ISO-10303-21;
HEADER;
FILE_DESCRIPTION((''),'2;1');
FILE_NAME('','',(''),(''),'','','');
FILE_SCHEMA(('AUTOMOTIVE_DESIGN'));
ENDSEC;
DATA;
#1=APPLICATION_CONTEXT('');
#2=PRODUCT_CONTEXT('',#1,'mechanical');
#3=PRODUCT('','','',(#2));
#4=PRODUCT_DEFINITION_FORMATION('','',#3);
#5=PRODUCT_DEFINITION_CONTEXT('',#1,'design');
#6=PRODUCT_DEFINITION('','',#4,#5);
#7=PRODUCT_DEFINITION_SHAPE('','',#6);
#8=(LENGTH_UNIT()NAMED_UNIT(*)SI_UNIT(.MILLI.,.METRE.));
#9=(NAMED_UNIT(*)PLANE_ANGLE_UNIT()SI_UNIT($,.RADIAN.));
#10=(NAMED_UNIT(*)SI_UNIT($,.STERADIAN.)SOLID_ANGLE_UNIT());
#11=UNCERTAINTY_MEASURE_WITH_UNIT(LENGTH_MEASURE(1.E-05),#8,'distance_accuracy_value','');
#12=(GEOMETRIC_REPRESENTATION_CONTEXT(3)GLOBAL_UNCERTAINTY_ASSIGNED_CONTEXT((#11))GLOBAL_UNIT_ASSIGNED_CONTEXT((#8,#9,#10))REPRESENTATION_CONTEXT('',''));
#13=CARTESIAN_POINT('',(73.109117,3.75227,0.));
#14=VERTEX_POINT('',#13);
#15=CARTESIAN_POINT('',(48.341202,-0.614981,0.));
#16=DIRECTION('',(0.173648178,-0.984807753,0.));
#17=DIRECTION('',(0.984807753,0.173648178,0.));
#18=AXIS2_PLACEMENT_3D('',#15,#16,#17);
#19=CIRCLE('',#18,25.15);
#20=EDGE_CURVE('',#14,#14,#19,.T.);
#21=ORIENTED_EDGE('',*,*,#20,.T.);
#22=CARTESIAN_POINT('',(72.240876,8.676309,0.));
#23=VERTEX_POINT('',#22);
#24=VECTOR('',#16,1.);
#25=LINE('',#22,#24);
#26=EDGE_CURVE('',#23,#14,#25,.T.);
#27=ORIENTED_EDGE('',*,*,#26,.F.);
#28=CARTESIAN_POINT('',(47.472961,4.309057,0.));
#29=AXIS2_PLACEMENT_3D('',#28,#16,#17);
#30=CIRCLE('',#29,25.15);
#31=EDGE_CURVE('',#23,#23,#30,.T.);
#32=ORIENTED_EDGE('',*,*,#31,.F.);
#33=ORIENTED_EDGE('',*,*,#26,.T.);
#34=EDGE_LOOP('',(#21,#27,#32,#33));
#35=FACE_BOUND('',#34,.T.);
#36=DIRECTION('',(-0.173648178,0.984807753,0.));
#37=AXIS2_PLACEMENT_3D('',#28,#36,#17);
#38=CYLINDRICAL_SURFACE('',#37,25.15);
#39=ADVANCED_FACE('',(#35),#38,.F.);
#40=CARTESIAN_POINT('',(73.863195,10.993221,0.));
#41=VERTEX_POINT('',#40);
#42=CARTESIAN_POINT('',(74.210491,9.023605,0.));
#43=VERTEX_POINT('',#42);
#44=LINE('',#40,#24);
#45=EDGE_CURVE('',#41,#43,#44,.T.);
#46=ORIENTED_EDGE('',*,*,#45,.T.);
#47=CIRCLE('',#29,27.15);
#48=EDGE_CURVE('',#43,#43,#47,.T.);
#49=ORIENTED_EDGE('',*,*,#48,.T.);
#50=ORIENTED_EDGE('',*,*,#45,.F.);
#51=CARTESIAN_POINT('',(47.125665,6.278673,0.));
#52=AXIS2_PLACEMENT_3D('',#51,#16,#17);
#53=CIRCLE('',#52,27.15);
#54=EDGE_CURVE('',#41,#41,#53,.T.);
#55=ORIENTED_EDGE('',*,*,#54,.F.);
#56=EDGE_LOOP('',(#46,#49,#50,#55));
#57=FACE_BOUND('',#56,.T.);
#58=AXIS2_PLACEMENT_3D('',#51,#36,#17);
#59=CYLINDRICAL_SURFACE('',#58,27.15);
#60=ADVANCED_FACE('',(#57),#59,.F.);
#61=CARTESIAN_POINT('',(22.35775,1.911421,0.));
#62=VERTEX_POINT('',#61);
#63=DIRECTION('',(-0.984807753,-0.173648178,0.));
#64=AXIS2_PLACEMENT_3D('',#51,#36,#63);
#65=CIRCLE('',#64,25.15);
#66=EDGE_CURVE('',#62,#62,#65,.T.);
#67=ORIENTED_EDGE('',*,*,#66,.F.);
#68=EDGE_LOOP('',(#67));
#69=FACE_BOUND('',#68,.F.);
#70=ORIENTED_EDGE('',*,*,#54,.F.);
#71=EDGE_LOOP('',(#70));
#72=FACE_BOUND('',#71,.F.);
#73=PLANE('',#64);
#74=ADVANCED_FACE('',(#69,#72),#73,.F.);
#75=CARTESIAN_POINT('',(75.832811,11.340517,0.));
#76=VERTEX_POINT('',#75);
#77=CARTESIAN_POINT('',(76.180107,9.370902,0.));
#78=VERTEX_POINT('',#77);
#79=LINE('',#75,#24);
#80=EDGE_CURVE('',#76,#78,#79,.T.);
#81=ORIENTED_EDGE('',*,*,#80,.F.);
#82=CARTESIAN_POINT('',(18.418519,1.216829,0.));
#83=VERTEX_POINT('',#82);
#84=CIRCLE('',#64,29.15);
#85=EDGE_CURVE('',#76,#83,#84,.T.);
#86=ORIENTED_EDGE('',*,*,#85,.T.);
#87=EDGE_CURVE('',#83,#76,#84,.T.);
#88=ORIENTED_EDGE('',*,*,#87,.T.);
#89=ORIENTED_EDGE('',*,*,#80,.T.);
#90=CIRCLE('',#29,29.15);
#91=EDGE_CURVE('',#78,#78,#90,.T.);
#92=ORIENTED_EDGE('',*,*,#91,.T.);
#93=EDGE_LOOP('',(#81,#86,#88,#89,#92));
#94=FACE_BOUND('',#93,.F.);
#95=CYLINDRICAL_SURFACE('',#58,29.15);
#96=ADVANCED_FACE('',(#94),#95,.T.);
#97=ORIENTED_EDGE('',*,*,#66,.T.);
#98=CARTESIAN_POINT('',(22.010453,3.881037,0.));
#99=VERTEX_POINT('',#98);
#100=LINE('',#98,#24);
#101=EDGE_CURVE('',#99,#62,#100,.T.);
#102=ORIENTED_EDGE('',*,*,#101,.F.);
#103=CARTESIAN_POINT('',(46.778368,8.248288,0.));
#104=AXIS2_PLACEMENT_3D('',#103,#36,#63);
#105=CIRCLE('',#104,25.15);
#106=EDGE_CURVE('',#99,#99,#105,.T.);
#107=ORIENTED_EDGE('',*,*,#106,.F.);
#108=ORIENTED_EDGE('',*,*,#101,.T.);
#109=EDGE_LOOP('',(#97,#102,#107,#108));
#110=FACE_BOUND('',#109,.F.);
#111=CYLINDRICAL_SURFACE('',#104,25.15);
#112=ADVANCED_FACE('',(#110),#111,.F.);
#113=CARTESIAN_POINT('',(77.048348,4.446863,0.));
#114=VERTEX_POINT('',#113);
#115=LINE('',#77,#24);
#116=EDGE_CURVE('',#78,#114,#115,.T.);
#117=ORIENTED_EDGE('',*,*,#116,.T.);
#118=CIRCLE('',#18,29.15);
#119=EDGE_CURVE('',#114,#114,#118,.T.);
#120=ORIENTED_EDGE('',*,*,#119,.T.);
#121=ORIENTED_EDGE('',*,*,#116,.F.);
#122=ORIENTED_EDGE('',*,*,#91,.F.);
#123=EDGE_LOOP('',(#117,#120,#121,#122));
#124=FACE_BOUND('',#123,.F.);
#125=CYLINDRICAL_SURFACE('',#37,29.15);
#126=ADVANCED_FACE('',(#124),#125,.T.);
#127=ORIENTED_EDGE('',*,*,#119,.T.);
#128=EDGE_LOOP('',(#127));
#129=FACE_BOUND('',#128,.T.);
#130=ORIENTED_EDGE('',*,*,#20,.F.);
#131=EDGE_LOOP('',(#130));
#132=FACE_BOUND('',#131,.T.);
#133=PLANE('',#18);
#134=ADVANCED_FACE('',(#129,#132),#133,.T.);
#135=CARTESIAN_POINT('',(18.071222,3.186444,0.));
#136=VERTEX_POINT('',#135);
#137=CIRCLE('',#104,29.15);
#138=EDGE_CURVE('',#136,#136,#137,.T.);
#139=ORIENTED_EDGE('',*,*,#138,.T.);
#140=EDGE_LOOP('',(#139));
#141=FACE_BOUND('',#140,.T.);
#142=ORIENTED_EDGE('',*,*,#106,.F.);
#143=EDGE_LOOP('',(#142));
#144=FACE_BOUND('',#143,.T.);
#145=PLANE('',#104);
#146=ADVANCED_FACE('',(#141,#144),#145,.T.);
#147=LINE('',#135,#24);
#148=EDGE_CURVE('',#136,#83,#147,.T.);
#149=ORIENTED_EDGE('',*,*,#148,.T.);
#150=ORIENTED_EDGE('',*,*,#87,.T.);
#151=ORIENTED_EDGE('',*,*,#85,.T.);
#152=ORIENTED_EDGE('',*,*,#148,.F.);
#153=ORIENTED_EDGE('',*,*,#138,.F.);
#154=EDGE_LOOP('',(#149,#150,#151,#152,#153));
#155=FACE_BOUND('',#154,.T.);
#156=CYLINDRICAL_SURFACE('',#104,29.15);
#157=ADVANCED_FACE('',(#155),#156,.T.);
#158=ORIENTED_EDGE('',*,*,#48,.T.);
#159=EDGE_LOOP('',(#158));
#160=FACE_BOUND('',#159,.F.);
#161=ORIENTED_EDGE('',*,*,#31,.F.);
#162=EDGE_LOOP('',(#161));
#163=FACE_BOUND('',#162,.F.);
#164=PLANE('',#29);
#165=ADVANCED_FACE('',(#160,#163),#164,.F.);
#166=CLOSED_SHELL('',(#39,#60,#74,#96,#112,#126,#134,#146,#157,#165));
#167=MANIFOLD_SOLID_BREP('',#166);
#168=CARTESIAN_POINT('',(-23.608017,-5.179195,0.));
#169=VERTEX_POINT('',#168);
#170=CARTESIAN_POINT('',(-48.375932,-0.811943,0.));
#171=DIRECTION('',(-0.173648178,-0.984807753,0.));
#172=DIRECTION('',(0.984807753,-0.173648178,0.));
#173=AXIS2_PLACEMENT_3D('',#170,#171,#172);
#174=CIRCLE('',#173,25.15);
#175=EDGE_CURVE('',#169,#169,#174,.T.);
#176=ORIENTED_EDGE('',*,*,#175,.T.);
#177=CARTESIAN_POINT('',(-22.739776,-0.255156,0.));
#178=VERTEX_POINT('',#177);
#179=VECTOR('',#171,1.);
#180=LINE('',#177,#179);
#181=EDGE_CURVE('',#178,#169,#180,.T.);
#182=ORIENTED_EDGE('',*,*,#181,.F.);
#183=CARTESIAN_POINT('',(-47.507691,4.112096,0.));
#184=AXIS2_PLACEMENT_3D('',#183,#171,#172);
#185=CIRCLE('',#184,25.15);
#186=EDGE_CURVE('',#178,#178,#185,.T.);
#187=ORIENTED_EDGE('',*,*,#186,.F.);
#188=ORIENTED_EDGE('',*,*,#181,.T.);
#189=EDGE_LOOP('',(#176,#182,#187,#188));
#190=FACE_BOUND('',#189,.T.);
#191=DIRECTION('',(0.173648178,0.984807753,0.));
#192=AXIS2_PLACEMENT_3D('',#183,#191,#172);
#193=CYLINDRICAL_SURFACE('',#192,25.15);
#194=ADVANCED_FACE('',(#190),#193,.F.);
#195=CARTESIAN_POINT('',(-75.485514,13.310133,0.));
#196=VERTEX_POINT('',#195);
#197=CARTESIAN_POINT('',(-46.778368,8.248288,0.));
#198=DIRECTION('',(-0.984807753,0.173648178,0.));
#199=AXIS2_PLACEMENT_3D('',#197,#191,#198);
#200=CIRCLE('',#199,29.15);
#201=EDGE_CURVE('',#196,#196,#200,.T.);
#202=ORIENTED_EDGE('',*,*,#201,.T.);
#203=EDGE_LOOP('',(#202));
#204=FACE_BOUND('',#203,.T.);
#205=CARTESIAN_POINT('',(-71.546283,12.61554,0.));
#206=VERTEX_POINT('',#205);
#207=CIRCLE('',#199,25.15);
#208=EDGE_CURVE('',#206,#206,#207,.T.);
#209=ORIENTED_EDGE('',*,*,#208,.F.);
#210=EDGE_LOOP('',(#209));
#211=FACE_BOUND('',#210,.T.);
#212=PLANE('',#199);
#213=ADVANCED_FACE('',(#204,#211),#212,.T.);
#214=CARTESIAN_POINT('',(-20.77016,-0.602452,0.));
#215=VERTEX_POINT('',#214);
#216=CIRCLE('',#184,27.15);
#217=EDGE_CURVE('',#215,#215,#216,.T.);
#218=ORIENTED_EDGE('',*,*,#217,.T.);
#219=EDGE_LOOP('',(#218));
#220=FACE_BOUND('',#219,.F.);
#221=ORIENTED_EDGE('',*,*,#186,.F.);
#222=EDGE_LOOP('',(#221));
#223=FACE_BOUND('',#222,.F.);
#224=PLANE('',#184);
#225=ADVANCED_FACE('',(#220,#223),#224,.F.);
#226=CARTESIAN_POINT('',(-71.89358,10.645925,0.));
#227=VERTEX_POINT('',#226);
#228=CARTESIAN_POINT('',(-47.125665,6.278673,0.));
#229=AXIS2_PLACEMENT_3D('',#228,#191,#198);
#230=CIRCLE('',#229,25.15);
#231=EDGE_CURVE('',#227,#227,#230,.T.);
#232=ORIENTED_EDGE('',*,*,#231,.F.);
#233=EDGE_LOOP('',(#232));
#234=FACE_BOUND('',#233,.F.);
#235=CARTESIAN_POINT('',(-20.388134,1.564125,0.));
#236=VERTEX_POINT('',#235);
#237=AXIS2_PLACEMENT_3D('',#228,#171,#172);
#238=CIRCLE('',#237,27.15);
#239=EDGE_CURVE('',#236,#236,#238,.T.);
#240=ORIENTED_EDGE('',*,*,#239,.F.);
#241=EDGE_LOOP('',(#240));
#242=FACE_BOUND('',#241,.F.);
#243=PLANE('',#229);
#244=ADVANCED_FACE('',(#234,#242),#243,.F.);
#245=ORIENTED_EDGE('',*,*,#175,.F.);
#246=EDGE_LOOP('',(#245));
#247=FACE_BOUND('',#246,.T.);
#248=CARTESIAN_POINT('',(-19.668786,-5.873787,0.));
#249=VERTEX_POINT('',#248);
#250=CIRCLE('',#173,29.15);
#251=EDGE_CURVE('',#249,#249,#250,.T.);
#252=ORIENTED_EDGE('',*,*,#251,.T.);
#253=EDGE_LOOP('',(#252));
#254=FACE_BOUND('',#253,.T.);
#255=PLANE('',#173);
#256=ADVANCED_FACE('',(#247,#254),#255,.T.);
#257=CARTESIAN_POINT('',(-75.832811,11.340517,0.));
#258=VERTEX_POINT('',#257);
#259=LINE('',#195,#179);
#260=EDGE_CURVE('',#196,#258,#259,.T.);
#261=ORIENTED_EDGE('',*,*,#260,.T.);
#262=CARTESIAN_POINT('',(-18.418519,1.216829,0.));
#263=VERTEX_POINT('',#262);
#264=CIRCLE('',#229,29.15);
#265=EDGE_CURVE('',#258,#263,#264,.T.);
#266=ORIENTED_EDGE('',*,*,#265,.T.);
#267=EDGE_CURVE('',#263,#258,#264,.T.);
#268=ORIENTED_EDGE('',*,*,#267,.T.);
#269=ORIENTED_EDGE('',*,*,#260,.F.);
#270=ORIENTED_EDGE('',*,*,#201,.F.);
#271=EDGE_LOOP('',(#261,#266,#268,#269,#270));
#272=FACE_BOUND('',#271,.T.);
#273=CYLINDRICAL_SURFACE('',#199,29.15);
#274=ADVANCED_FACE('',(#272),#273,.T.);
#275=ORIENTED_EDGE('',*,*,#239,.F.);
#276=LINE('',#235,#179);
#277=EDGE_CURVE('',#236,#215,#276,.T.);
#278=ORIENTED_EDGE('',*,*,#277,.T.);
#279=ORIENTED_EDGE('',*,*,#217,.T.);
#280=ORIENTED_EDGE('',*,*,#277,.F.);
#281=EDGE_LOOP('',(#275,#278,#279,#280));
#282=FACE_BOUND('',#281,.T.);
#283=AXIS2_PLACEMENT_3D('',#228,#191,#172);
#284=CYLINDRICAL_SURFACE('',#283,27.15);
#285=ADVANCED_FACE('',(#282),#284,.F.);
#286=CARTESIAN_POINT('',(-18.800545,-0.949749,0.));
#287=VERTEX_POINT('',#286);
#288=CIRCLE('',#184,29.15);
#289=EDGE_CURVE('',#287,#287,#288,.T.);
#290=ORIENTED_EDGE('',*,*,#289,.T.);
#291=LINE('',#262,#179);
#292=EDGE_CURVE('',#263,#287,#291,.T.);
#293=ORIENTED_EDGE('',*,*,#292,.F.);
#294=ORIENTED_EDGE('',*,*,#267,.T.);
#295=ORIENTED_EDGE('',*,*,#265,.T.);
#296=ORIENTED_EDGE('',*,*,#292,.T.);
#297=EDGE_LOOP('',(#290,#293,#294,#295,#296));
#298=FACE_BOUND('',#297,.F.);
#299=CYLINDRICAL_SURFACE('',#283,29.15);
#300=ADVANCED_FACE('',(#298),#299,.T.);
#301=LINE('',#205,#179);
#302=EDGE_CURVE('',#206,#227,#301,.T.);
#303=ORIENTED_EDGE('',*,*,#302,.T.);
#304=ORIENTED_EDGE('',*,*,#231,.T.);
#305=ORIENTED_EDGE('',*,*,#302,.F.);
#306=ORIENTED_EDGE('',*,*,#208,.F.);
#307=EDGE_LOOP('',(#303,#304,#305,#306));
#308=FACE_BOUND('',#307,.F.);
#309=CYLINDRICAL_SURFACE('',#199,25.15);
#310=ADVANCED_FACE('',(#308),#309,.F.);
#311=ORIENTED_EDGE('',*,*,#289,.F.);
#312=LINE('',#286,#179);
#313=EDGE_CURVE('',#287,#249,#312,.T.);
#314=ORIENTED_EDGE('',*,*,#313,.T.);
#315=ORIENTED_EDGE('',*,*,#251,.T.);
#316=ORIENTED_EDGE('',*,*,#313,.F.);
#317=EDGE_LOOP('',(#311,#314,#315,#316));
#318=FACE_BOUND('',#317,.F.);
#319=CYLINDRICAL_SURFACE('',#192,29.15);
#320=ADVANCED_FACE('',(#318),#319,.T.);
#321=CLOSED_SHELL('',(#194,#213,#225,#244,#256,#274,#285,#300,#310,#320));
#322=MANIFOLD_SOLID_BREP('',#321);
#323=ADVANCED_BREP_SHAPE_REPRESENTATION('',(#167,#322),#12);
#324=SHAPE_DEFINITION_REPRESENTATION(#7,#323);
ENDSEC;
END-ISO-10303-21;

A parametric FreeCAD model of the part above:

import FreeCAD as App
import Part
import Sketcher

V = App.Vector
Q = App.Units.Quantity

doc = App.newDocument("Part")
params = doc.addObject("Spreadsheet::Sheet", "Params")
for row, (alias, value) in enumerate([
    ("sketch1_diameter", "58.3 mm"),
    ("sketch1_diameter2", "50.3 mm"),
    ("pad1_length", "2 mm"),
    ("sketch2_diameter", "58.3 mm"),
    ("sketch2_diameter2", "54.3 mm"),
    ("pad2_length", "2.2 mm"),
    ("sketch3_diameter", "58.3 mm"),
    ("sketch3_diameter2", "50.3 mm"),
    ("pad3_length", "5 mm"),
    ("sketch4_diameter", "58.3 mm"),
    ("sketch4_diameter2", "50.3 mm"),
    ("pad4_length", "2 mm"),
    ("sketch5_diameter", "58.3 mm"),
    ("sketch5_diameter2", "54.3 mm"),
    ("pad5_length", "2 mm"),
    ("sketch6_diameter", "58.3 mm"),
    ("sketch6_diameter2", "50.3 mm"),
    ("pad6_length", "5 mm"),
], start=1):
    params.set(f"A{row}", alias)
    params.set(f"B{row}", "=" + value)
    params.setAlias(f"B{row}", alias)

body = doc.addObject("PartDesign::Body", "Body")

# Sketch on an angled plane
sketch1 = body.newObject("Sketcher::SketchObject", "Sketch")
sketch1.Placement = App.Placement(V(0, 0, 0), App.Rotation(V(-0.984807753, 0.173648178, 0), V(0, 0, 1), V(0.173648178, 0.984807753, 0), "ZXY"))
sketch1.addGeometry([
    Part.Circle(V(47.5, 0, 0), V(0, 0, 1), 29.15),
    Part.Circle(V(47.5, 0, 0), V(0, 0, 1), 25.15),
], False)
sketch1.addConstraint([
    Sketcher.Constraint("Coincident", 1, 3, 0, 3),
    Sketcher.Constraint("PointOnObject", 0, 3, -1),
    Sketcher.Constraint("Diameter", 0, Q("58.3 mm")),
    Sketcher.Constraint("Diameter", 1, Q("50.3 mm")),
    Sketcher.Constraint("DistanceX", -1, 1, 0, 3, Q("47.5 mm")),
])
sketch1.setExpression("Constraints[2]", "Params.sketch1_diameter")
sketch1.setExpression("Constraints[3]", "Params.sketch1_diameter2")
pad1 = body.newObject("PartDesign::Pad", "Pad")
pad1.Profile = sketch1
pad1.setExpression("Length", "Params.pad1_length")
pad1.Reversed = True

# Sketch on an angled plane
sketch2 = body.newObject("Sketcher::SketchObject", "Sketch001")
sketch2.Placement = App.Placement(V(-0.347296, -1.969616, 0), App.Rotation(V(0.984807753, -0.173648178, 0), V(0, 0, 1), V(-0.173648178, -0.984807753, 0), "ZXY"))
sketch2.addGeometry([
    Part.Circle(V(-47.5, 0, 0), V(0, 0, 1), 29.15),
    Part.Circle(V(-47.5, 0, 0), V(0, 0, 1), 27.15),
], False)
sketch2.addConstraint([
    Sketcher.Constraint("Coincident", 1, 3, 0, 3),
    Sketcher.Constraint("PointOnObject", 0, 3, -1),
    Sketcher.Constraint("Diameter", 0, Q("58.3 mm")),
    Sketcher.Constraint("Diameter", 1, Q("54.3 mm")),
    Sketcher.Constraint("DistanceX", 0, 3, -1, 1, Q("47.5 mm")),
])
sketch2.setExpression("Constraints[2]", "Params.sketch2_diameter")
sketch2.setExpression("Constraints[3]", "Params.sketch2_diameter2")
pad2 = body.newObject("PartDesign::Pad", "Pad001")
pad2.Profile = sketch2
pad2.setExpression("Length", "Params.pad2_length")

# Sketch on an angled plane
sketch3 = body.newObject("Sketcher::SketchObject", "Sketch002")
sketch3.Placement = App.Placement(V(-0.729322, -4.136193, 0), App.Rotation(V(0.984807753, -0.173648178, 0), V(0, 0, 1), V(-0.173648178, -0.984807753, 0), "ZXY"))
sketch3.addGeometry([
    Part.Circle(V(-47.5, 0, 0), V(0, 0, 1), 29.15),
    Part.Circle(V(-47.5, 0, 0), V(0, 0, 1), 25.15),
], False)
sketch3.addConstraint([
    Sketcher.Constraint("Coincident", 1, 3, 0, 3),
    Sketcher.Constraint("PointOnObject", 0, 3, -1),
    Sketcher.Constraint("Diameter", 0, Q("58.3 mm")),
    Sketcher.Constraint("Diameter", 1, Q("50.3 mm")),
    Sketcher.Constraint("DistanceX", 0, 3, -1, 1, Q("47.5 mm")),
])
sketch3.setExpression("Constraints[2]", "Params.sketch3_diameter")
sketch3.setExpression("Constraints[3]", "Params.sketch3_diameter2")
pad3 = body.newObject("PartDesign::Pad", "Pad002")
pad3.Profile = sketch3
pad3.setExpression("Length", "Params.pad3_length")
body2 = doc.addObject("PartDesign::Body", "Body001")

# Sketch on an angled plane
sketch4 = body2.newObject("Sketcher::SketchObject", "Sketch003")
sketch4.Placement = App.Placement(V(0, 0, 0), App.Rotation(V(-0.984807753, -0.173648178, 0), V(0, 0, 1), V(-0.173648178, 0.984807753, 0), "ZXY"))
sketch4.addGeometry([
    Part.Circle(V(-47.5, 0, 0), V(0, 0, 1), 29.15),
    Part.Circle(V(-47.5, 0, 0), V(0, 0, 1), 25.15),
], False)
sketch4.addConstraint([
    Sketcher.Constraint("Coincident", 1, 3, 0, 3),
    Sketcher.Constraint("PointOnObject", 0, 3, -1),
    Sketcher.Constraint("Diameter", 0, Q("58.3 mm")),
    Sketcher.Constraint("Diameter", 1, Q("50.3 mm")),
    Sketcher.Constraint("DistanceX", 0, 3, -1, 1, Q("47.5 mm")),
])
sketch4.setExpression("Constraints[2]", "Params.sketch4_diameter")
sketch4.setExpression("Constraints[3]", "Params.sketch4_diameter2")
pad4 = body2.newObject("PartDesign::Pad", "Pad003")
pad4.Profile = sketch4
pad4.setExpression("Length", "Params.pad4_length")
pad4.Reversed = True

# Sketch on an angled plane
sketch5 = body2.newObject("Sketcher::SketchObject", "Sketch004")
sketch5.Placement = App.Placement(V(0.347296, -1.969616, 0), App.Rotation(V(0.984807753, 0.173648178, 0), V(0, 0, 1), V(0.173648178, -0.984807753, 0), "ZXY"))
sketch5.addGeometry([
    Part.Circle(V(47.5, 0, 0), V(0, 0, 1), 29.15),
    Part.Circle(V(47.5, 0, 0), V(0, 0, 1), 27.15),
], False)
sketch5.addConstraint([
    Sketcher.Constraint("Coincident", 1, 3, 0, 3),
    Sketcher.Constraint("PointOnObject", 0, 3, -1),
    Sketcher.Constraint("Diameter", 0, Q("58.3 mm")),
    Sketcher.Constraint("Diameter", 1, Q("54.3 mm")),
    Sketcher.Constraint("DistanceX", -1, 1, 0, 3, Q("47.5 mm")),
])
sketch5.setExpression("Constraints[2]", "Params.sketch5_diameter")
sketch5.setExpression("Constraints[3]", "Params.sketch5_diameter2")
pad5 = body2.newObject("PartDesign::Pad", "Pad004")
pad5.Profile = sketch5
pad5.setExpression("Length", "Params.pad5_length")

# Sketch on an angled plane
sketch6 = body2.newObject("Sketcher::SketchObject", "Sketch005")
sketch6.Placement = App.Placement(V(0.694593, -3.939231, 0), App.Rotation(V(0.984807753, 0.173648178, 0), V(0, 0, 1), V(0.173648178, -0.984807753, 0), "ZXY"))
sketch6.addGeometry([
    Part.Circle(V(47.5, 0, 0), V(0, 0, 1), 29.15),
    Part.Circle(V(47.5, 0, 0), V(0, 0, 1), 25.15),
], False)
sketch6.addConstraint([
    Sketcher.Constraint("Coincident", 1, 3, 0, 3),
    Sketcher.Constraint("PointOnObject", 0, 3, -1),
    Sketcher.Constraint("Diameter", 0, Q("58.3 mm")),
    Sketcher.Constraint("Diameter", 1, Q("50.3 mm")),
    Sketcher.Constraint("DistanceX", -1, 1, 0, 3, Q("47.5 mm")),
])
sketch6.setExpression("Constraints[2]", "Params.sketch6_diameter")
sketch6.setExpression("Constraints[3]", "Params.sketch6_diameter2")
pad6 = body2.newObject("PartDesign::Pad", "Pad005")
pad6.Profile = sketch6
pad6.setExpression("Length", "Params.pad6_length")

doc.recompute()
